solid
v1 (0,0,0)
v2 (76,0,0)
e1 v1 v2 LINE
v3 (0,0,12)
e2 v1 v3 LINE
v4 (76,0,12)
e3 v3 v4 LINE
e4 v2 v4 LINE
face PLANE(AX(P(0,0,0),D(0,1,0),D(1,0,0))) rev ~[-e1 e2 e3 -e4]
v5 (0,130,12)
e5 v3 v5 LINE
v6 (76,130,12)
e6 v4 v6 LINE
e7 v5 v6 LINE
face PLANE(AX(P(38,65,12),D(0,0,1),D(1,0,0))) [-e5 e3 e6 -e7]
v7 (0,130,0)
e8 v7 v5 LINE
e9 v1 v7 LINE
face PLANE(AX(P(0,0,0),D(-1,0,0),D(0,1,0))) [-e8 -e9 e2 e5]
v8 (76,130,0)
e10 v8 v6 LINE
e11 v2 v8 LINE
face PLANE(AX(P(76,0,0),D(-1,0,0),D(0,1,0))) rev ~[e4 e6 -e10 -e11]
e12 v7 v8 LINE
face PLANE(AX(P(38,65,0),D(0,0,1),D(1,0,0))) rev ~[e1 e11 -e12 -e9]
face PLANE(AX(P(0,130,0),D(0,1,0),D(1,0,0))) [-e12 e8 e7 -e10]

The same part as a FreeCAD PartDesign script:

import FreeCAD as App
import Part
import Sketcher

doc = App.newDocument("Part")
body = doc.addObject("PartDesign::Body", "Body")

sketch1 = body.newObject("Sketcher::SketchObject", "Sketch")
sketch1.AttachmentSupport = (doc.getObject("XY_Plane"), [""])
sketch1.MapMode = "FlatFace"
sketch1.addGeometry([
    Part.LineSegment(App.Vector(0, 130, 0), App.Vector(0, 0, 0)),
    Part.LineSegment(App.Vector(0, 0, 0), App.Vector(76, 0, 0)),
    Part.LineSegment(App.Vector(76, 0, 0), App.Vector(76, 130, 0)),
    Part.LineSegment(App.Vector(76, 130, 0), App.Vector(0, 130, 0)),
], False)
sketch1.addConstraint([
    Sketcher.Constraint("Coincident", 0, 2, 1, 1),
    Sketcher.Constraint("Coincident", 1, 2, 2, 1),
    Sketcher.Constraint("Coincident", 2, 2, 3, 1),
    Sketcher.Constraint("Coincident", 3, 2, 0, 1),
    Sketcher.Constraint("Vertical", 0),
    Sketcher.Constraint("Horizontal", 1),
    Sketcher.Constraint("Vertical", 2),
    Sketcher.Constraint("Horizontal", 3),
    Sketcher.Constraint("Coincident", 0, 2, -1, 1),
    Sketcher.Constraint("DistanceX", 1, 1, 1, 2, 76.0),
    Sketcher.Constraint("DistanceY", 0, 2, 0, 1, 130.0),
])
pad1 = body.newObject("PartDesign::Pad", "Pad")
pad1.Profile = sketch1
pad1.Length = 12

doc.recompute()
